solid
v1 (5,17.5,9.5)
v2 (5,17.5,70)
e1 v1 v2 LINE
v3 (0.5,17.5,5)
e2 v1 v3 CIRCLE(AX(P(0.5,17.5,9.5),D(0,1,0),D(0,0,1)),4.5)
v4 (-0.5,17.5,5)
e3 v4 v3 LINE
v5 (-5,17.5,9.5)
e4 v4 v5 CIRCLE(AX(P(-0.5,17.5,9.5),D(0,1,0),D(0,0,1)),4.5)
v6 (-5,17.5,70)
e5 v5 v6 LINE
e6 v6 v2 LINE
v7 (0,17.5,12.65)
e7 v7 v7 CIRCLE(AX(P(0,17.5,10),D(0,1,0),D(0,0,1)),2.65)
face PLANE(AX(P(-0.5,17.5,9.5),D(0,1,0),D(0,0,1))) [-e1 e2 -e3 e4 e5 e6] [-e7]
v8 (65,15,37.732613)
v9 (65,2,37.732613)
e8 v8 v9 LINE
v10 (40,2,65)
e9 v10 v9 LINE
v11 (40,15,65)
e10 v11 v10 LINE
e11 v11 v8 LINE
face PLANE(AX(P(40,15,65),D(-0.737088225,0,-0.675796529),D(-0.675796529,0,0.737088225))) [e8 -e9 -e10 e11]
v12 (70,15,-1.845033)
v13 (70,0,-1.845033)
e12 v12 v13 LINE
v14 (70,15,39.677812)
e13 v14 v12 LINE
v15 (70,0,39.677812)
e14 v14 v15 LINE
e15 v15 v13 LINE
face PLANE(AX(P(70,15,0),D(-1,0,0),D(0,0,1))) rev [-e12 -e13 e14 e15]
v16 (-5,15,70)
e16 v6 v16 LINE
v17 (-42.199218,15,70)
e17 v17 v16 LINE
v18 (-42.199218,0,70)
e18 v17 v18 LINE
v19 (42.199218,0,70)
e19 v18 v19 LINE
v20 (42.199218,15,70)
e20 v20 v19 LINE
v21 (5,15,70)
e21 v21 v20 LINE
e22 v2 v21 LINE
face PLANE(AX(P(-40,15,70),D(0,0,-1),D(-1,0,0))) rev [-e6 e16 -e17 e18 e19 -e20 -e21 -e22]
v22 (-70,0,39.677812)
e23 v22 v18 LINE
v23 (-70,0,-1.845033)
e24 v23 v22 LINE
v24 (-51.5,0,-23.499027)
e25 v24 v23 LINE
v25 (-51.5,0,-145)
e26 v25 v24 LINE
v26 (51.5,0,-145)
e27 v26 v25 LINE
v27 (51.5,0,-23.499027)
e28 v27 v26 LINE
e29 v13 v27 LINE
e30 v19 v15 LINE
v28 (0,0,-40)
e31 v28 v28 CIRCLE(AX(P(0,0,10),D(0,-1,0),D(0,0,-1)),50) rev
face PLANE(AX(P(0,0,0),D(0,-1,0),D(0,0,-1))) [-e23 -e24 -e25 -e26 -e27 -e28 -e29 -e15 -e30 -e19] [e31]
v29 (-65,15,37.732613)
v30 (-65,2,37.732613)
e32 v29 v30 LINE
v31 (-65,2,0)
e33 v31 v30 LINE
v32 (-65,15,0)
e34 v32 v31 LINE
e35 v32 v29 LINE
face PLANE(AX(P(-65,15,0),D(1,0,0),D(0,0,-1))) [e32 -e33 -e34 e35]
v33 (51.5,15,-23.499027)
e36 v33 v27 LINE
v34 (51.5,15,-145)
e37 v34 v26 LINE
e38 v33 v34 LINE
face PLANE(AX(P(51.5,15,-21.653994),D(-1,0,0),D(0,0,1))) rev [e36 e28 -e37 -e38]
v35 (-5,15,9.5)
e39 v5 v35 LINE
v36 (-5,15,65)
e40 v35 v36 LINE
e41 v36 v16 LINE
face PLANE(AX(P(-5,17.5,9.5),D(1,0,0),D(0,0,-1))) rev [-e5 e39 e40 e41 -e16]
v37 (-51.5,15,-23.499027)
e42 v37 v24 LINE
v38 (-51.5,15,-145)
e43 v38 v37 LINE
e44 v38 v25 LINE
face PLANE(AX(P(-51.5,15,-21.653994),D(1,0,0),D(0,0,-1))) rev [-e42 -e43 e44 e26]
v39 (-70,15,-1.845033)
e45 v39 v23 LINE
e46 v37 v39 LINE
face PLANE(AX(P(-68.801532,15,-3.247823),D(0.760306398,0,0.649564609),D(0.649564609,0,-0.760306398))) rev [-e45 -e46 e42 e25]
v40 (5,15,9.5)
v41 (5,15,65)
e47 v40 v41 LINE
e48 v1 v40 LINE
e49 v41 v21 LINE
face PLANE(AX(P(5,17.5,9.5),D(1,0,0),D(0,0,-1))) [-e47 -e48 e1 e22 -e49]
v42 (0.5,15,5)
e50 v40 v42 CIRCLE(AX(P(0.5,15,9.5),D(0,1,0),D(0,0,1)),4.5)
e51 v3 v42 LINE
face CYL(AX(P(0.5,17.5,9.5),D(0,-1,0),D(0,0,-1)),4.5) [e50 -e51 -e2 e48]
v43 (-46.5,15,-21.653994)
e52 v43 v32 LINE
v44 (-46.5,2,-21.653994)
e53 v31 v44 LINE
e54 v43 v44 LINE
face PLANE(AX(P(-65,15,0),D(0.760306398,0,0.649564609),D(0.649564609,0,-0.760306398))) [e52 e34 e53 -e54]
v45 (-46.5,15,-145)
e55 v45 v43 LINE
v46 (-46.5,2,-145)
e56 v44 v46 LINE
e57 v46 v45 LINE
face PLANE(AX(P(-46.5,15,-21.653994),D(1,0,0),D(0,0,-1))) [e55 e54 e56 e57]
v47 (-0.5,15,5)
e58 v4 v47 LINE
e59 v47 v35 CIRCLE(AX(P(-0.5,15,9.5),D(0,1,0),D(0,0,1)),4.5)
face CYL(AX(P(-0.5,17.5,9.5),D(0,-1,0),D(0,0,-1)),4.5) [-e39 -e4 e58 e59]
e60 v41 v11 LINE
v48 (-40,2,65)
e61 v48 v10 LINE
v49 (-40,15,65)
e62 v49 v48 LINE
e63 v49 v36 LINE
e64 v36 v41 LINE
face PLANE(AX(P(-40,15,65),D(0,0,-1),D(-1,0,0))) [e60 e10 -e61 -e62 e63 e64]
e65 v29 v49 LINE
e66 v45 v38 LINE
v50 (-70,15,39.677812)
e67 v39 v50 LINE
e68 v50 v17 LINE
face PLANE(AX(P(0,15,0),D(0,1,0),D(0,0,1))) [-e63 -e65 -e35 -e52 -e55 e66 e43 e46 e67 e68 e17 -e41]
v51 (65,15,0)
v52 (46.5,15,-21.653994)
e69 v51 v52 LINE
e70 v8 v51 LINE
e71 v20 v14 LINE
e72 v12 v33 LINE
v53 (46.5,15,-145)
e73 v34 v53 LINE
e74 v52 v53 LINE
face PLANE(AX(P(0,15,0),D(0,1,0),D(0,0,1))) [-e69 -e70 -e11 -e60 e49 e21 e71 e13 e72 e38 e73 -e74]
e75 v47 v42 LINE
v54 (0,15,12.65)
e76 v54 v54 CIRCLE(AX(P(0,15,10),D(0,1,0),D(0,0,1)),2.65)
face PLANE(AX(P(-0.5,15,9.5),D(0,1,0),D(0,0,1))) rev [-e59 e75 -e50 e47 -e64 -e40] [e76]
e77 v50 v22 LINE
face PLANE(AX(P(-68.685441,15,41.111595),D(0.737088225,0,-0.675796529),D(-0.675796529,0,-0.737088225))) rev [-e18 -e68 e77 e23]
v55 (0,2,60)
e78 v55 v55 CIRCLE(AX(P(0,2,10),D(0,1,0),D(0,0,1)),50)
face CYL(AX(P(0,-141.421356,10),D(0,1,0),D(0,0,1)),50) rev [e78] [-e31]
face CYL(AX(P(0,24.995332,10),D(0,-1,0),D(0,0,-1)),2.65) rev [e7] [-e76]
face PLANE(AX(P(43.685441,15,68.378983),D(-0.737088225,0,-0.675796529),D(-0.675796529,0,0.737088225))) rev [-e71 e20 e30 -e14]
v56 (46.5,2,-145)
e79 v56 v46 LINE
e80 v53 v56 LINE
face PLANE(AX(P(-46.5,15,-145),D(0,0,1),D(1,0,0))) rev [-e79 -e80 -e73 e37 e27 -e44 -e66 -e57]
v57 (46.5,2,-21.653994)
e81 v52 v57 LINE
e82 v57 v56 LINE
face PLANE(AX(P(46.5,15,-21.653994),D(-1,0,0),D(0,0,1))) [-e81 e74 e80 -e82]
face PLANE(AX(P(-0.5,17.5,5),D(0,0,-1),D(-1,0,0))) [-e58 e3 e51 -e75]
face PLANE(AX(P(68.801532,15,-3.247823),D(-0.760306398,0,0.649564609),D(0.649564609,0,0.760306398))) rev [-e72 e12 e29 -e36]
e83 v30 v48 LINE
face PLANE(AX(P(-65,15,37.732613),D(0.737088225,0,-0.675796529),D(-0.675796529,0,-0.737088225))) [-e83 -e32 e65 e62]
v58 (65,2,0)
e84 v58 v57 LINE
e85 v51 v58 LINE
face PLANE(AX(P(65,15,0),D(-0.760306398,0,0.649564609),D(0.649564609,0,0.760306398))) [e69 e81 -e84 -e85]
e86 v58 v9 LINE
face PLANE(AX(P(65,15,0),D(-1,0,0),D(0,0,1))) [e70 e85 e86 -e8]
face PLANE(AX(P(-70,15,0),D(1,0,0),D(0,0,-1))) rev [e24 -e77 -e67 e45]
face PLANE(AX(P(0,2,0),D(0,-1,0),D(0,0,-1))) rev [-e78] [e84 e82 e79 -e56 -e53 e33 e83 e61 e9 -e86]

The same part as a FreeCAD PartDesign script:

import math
import FreeCAD as App
import Part
import Sketcher

doc = App.newDocument("Part")
body = doc.addObject("PartDesign::Body", "Body")

# Sketch on XZ plane
sketch1 = body.newObject("Sketcher::SketchObject", "Sketch")
sketch1.AttachmentSupport = (doc.getObject("XZ_Plane"), [""])
sketch1.MapMode = "FlatFace"
sketch1.addGeometry(Part.LineSegment(App.Vector(46.5, -140, 0), App.Vector(-46.5, -140, 0)), False)
sketch1.addGeometry(Part.LineSegment(App.Vector(-46.5, -140, 0), App.Vector(-46.5, -21.653994, 0)), False)
sketch1.addGeometry(Part.LineSegment(App.Vector(-46.5, -21.653994, 0), App.Vector(-65, 0, 0)), False)
sketch1.addGeometry(Part.LineSegment(App.Vector(-65, 0, 0), App.Vector(-65, 37.732613, 0)), False)
sketch1.addGeometry(Part.LineSegment(App.Vector(-65, 37.732613, 0), App.Vector(-40, 65, 0)), False)
sketch1.addGeometry(Part.LineSegment(App.Vector(-40, 65, 0), App.Vector(40, 65, 0)), False)
sketch1.addGeometry(Part.LineSegment(App.Vector(40, 65, 0), App.Vector(65, 37.732613, 0)), False)
sketch1.addGeometry(Part.LineSegment(App.Vector(65, 37.732613, 0), App.Vector(65, 0, 0)), False)
sketch1.addGeometry(Part.LineSegment(App.Vector(65, 0, 0), App.Vector(46.5, -21.653994, 0)), False)
sketch1.addGeometry(Part.LineSegment(App.Vector(46.5, -21.653994, 0), App.Vector(46.5, -140, 0)), False)
sketch1.addConstraint(Sketcher.Constraint("Coincident", 0, 2, 1, 1))
sketch1.addConstraint(Sketcher.Constraint("Coincident", 1, 2, 2, 1))
sketch1.addConstraint(Sketcher.Constraint("Coincident", 2, 2, 3, 1))
sketch1.addConstraint(Sketcher.Constraint("Coincident", 3, 2, 4, 1))
sketch1.addConstraint(Sketcher.Constraint("Coincident", 4, 2, 5, 1))
sketch1.addConstraint(Sketcher.Constraint("Coincident", 5, 2, 6, 1))
sketch1.addConstraint(Sketcher.Constraint("Coincident", 6, 2, 7, 1))
sketch1.addConstraint(Sketcher.Constraint("Coincident", 7, 2, 8, 1))
sketch1.addConstraint(Sketcher.Constraint("Coincident", 8, 2, 9, 1))
sketch1.addConstraint(Sketcher.Constraint("Coincident", 9, 2, 0, 1))
sketch1.addConstraint(Sketcher.Constraint("Horizontal", 0))
sketch1.addConstraint(Sketcher.Constraint("Vertical", 1))
sketch1.addConstraint(Sketcher.Constraint("Vertical", 3))
sketch1.addConstraint(Sketcher.Constraint("Horizontal", 5))
sketch1.addConstraint(Sketcher.Constraint("Vertical", 7))
sketch1.addConstraint(Sketcher.Constraint("Vertical", 9))
sketch1.addConstraint(Sketcher.Constraint("Symmetric", 2, 2, 7, 2, -1, 1))
sketch1.addConstraint(Sketcher.Constraint("Symmetric", 1, 2, 8, 2, -2))
sketch1.addConstraint(Sketcher.Constraint("PointOnObject", 2, 2, -1))
sketch1.addConstraint(Sketcher.Constraint("Horizontal", 3, 2, 6, 2))
sketch1.addConstraint(Sketcher.Constraint("Equal", 4, 6))
sketch1.addConstraint(Sketcher.Constraint("DistanceX", 0, 2, 0, 1, 93.0))
sketch1.addConstraint(Sketcher.Constraint("DistanceX", 5, 1, 5, 2, 80.0))
sketch1.addConstraint(Sketcher.Constraint("DistanceY", 0, 2, -1, 1, 140.0))
sketch1.addConstraint(Sketcher.Constraint("DistanceX", 2, 2, -1, 1, 65.0))
sketch1.addConstraint(Sketcher.Constraint("DistanceY", -1, 1, 4, 2, 65.0))
sketch1.addConstraint(Sketcher.Constraint("DistanceY", 1, 1, 1, 2, 118.346006))
sketch1.addConstraint(Sketcher.Constraint("DistanceY", 3, 1, 3, 2, 37.732613))
pad1 = body.newObject("PartDesign::Pad", "Pad")
pad1.Profile = sketch1
pad1.Length = 2
pad1.Reversed = True

# Sketch on XZ plane
sketch2 = body.newObject("Sketcher::SketchObject", "Sketch001")
sketch2.AttachmentSupport = (doc.getObject("XZ_Plane"), [""])
sketch2.MapMode = "FlatFace"
sketch2.addGeometry(Part.LineSegment(App.Vector(51.5, -145, 0), App.Vector(-51.5, -145, 0)), False)
sketch2.addGeometry(Part.LineSegment(App.Vector(-51.5, -145, 0), App.Vector(-51.5, -23.499027, 0)), False)
sketch2.addGeometry(Part.LineSegment(App.Vector(-51.5, -23.499027, 0), App.Vector(-70, -1.845033, 0)), False)
sketch2.addGeometry(Part.LineSegment(App.Vector(-70, -1.845033, 0), App.Vector(-70, 39.677812, 0)), False)
sketch2.addGeometry(Part.LineSegment(App.Vector(-70, 39.677812, 0), App.Vector(-42.199218, 70, 0)), False)
sketch2.addGeometry(Part.LineSegment(App.Vector(-42.199218, 70, 0), App.Vector(42.199218, 70, 0)), False)
sketch2.addGeometry(Part.LineSegment(App.Vector(42.199218, 70, 0), App.Vector(70, 39.677812, 0)), False)
sketch2.addGeometry(Part.LineSegment(App.Vector(70, 39.677812, 0), App.Vector(70, -1.845033, 0)), False)
sketch2.addGeometry(Part.LineSegment(App.Vector(70, -1.845033, 0), App.Vector(51.5, -23.499027, 0)), False)
sketch2.addGeometry(Part.LineSegment(App.Vector(51.5, -23.499027, 0), App.Vector(51.5, -145, 0)), False)
sketch2.addGeometry(Part.LineSegment(App.Vector(-46.5, -140, 0), App.Vector(46.5, -140, 0)), False)
sketch2.addGeometry(Part.LineSegment(App.Vector(46.5, -140, 0), App.Vector(46.5, -21.653994, 0)), False)
sketch2.addGeometry(Part.LineSegment(App.Vector(46.5, -21.653994, 0), App.Vector(65, 0, 0)), False)
sketch2.addGeometry(Part.LineSegment(App.Vector(65, 0, 0), App.Vector(65, 37.732613, 0)), False)
sketch2.addGeometry(Part.LineSegment(App.Vector(65, 37.732613, 0), App.Vector(40, 65, 0)), False)
sketch2.addGeometry(Part.LineSegment(App.Vector(40, 65, 0), App.Vector(-40, 65, 0)), False)
sketch2.addGeometry(Part.LineSegment(App.Vector(-40, 65, 0), App.Vector(-65, 37.732613, 0)), False)
sketch2.addGeometry(Part.LineSegment(App.Vector(-65, 37.732613, 0), App.Vector(-65, 0, 0)), False)
sketch2.addGeometry(Part.LineSegment(App.Vector(-65, 0, 0), App.Vector(-46.5, -21.653994, 0)), False)
sketch2.addGeometry(Part.LineSegment(App.Vector(-46.5, -21.653994, 0), App.Vector(-46.5, -140, 0)), False)
sketch2.addConstraint(Sketcher.Constraint("Coincident", 0, 2, 1, 1))
sketch2.addConstraint(Sketcher.Constraint("Coincident", 1, 2, 2, 1))
sketch2.addConstraint(Sketcher.Constraint("Coincident", 2, 2, 3, 1))
sketch2.addConstraint(Sketcher.Constraint("Coincident", 3, 2, 4, 1))
sketch2.addConstraint(Sketcher.Constraint("Coincident", 4, 2, 5, 1))
sketch2.addConstraint(Sketcher.Constraint("Coincident", 5, 2, 6, 1))
sketch2.addConstraint(Sketcher.Constraint("Coincident", 6, 2, 7, 1))
sketch2.addConstraint(Sketcher.Constraint("Coincident", 7, 2, 8, 1))
sketch2.addConstraint(Sketcher.Constraint("Coincident", 8, 2, 9, 1))
sketch2.addConstraint(Sketcher.Constraint("Coincident", 9, 2, 0, 1))
sketch2.addConstraint(Sketcher.Constraint("Coincident", 10, 2, 11, 1))
sketch2.addConstraint(Sketcher.Constraint("Coincident", 11, 2, 12, 1))
sketch2.addConstraint(Sketcher.Constraint("Coincident", 12, 2, 13, 1))
sketch2.addConstraint(Sketcher.Constraint("Coincident", 13, 2, 14, 1))
sketch2.addConstraint(Sketcher.Constraint("Coincident", 14, 2, 15, 1))
sketch2.addConstraint(Sketcher.Constraint("Coincident", 15, 2, 16, 1))
sketch2.addConstraint(Sketcher.Constraint("Coincident", 16, 2, 17, 1))
sketch2.addConstraint(Sketcher.Constraint("Coincident", 17, 2, 18, 1))
sketch2.addConstraint(Sketcher.Constraint("Coincident", 18, 2, 19, 1))
sketch2.addConstraint(Sketcher.Constraint("Coincident", 19, 2, 10, 1))
sketch2.addConstraint(Sketcher.Constraint("Horizontal", 0))
sketch2.addConstraint(Sketcher.Constraint("Vertical", 1))
sketch2.addConstraint(Sketcher.Constraint("Vertical", 3))
sketch2.addConstraint(Sketcher.Constraint("Horizontal", 5))
sketch2.addConstraint(Sketcher.Constraint("Vertical", 7))
sketch2.addConstraint(Sketcher.Constraint("Vertical", 9))
sketch2.addConstraint(Sketcher.Constraint("Horizontal", 10))
sketch2.addConstraint(Sketcher.Constraint("Vertical", 11))
sketch2.addConstraint(Sketcher.Constraint("Vertical", 13))
sketch2.addConstraint(Sketcher.Constraint("Horizontal", 15))
sketch2.addConstraint(Sketcher.Constraint("Vertical", 17))
sketch2.addConstraint(Sketcher.Constraint("Vertical", 19))
sketch2.addConstraint(Sketcher.Constraint("Symmetric", 12, 2, 17, 2, -1, 1))
sketch2.addConstraint(Sketcher.Constraint("Symmetric", 3, 2, 6, 2, -2))
sketch2.addConstraint(Sketcher.Constraint("Symmetric", 1, 2, 8, 2, -2))
sketch2.addConstraint(Sketcher.Constraint("Symmetric", 11, 2, 18, 2, -2))
sketch2.addConstraint(Sketcher.Constraint("PointOnObject", 12, 2, -1))
sketch2.addConstraint(Sketcher.Constraint("Parallel", 8, 12))
sketch2.addConstraint(Sketcher.Constraint("Parallel", 6, 14))
sketch2.addConstraint(Sketcher.Constraint("Parallel", 4, 16))
sketch2.addConstraint(Sketcher.Constraint("Parallel", 2, 18))
sketch2.addConstraint(Sketcher.Constraint("Horizontal", 13, 2, 16, 2))
sketch2.addConstraint(Sketcher.Constraint("Equal", 4, 6))
sketch2.addConstraint(Sketcher.Constraint("Equal", 8, 12))
sketch2.addConstraint(Sketcher.Constraint("DistanceX", 0, 2, 0, 1, 103.0))
sketch2.addConstraint(Sketcher.Constraint("DistanceX", 10, 1, 10, 2, 93.0))
sketch2.addConstraint(Sketcher.Constraint("DistanceX", 15, 2, 15, 1, 80.0))
sketch2.addConstraint(Sketcher.Constraint("DistanceY", 0, 2, -1, 1, 145.0))
sketch2.addConstraint(Sketcher.Constraint("DistanceX", 2, 2, -1, 1, 70.0))
sketch2.addConstraint(Sketcher.Constraint("DistanceY", -1, 1, 4, 2, 70.0))
sketch2.addConstraint(Sketcher.Constraint("DistanceY", 10, 2, -1, 1, 140.0))
sketch2.addConstraint(Sketcher.Constraint("DistanceY", -1, 1, 14, 2, 65.0))
sketch2.addConstraint(Sketcher.Constraint("Distance", 4, 41.1378))
sketch2.addConstraint(Sketcher.Constraint("DistanceY", 13, 2, 6, 2, 1.945199))
sketch2.addConstraint(Sketcher.Constraint("DistanceY", 1, 1, 1, 2, 121.500973))
sketch2.addConstraint(Sketcher.Constraint("DistanceY", 3, 1, 3, 2, 41.522845))
pad2 = body.newObject("PartDesign::Pad", "Pad001")
pad2.Profile = sketch2
pad2.Length = 15
pad2.Reversed = True

# Sketch on XY plane
sketch3 = body.newObject("Sketcher::SketchObject", "Sketch002")
sketch3.AttachmentSupport = (doc.getObject("XY_Plane"), [""])
sketch3.MapMode = "FlatFace"
sketch3.AttachmentOffset = App.Placement(App.Vector(0, 0, -140), App.Rotation())
sketch3.addGeometry(Part.LineSegment(App.Vector(-46.5, 15, 0), App.Vector(-46.5, 2, 0)), False)
sketch3.addGeometry(Part.LineSegment(App.Vector(-46.5, 2, 0), App.Vector(46.5, 2, 0)), False)
sketch3.addGeometry(Part.LineSegment(App.Vector(46.5, 2, 0), App.Vector(46.5, 15, 0)), False)
sketch3.addGeometry(Part.LineSegment(App.Vector(46.5, 15, 0), App.Vector(-46.5, 15, 0)), False)
sketch3.addConstraint(Sketcher.Constraint("Coincident", 0, 2, 1, 1))
sketch3.addConstraint(Sketcher.Constraint("Coincident", 1, 2, 2, 1))
sketch3.addConstraint(Sketcher.Constraint("Coincident", 2, 2, 3, 1))
sketch3.addConstraint(Sketcher.Constraint("Coincident", 3, 2, 0, 1))
sketch3.addConstraint(Sketcher.Constraint("Vertical", 0))
sketch3.addConstraint(Sketcher.Constraint("Horizontal", 1))
sketch3.addConstraint(Sketcher.Constraint("Vertical", 2))
sketch3.addConstraint(Sketcher.Constraint("Horizontal", 3))
sketch3.addConstraint(Sketcher.Constraint("DistanceX", 1, 1, 1, 2, 93.0))
sketch3.addConstraint(Sketcher.Constraint("DistanceY", 0, 2, 0, 1, 13.0))
sketch3.addConstraint(Sketcher.Constraint("DistanceY", -1, 1, 0, 2, 2.0))
sketch3.addConstraint(Sketcher.Constraint("DistanceX", 0, 2, -1, 1, 46.5))
pocket1 = body.newObject("PartDesign::Pocket", "Pocket")
pocket1.Profile = sketch3
pocket1.Length = 5

# Sketch on XZ plane
sketch4 = body.newObject("Sketcher::SketchObject", "Sketch003")
sketch4.AttachmentSupport = (doc.getObject("XZ_Plane"), [""])
sketch4.MapMode = "FlatFace"
sketch4.AttachmentOffset = App.Placement(App.Vector(0, 0, -2), App.Rotation())
sketch4.addGeometry(Part.Circle(App.Vector(0, 10, 0), App.Vector(0, 0, 1), 50), False)
sketch4.addConstraint(Sketcher.Constraint("PointOnObject", 0, 3, -2))
sketch4.addConstraint(Sketcher.Constraint("Diameter", 0, 100.0))
sketch4.addConstraint(Sketcher.Constraint("DistanceY", -1, 1, 0, 3, 10.0))
pocket2 = body.newObject("PartDesign::Pocket", "Pocket001")
pocket2.Profile = sketch4
pocket2.Length = 2
pocket2.Reversed = True

# Sketch on XZ plane
sketch5 = body.newObject("Sketcher::SketchObject", "Sketch004")
sketch5.AttachmentSupport = (doc.getObject("XZ_Plane"), [""])
sketch5.MapMode = "FlatFace"
sketch5.AttachmentOffset = App.Placement(App.Vector(0, 0, -15), App.Rotation())
sketch5.addGeometry(Part.LineSegment(App.Vector(0.5, 5, 0), App.Vector(-0.5, 5, 0)), False)
sketch5.addGeometry(Part.ArcOfCircle(Part.Circle(App.Vector(-0.5, 9.5, 0), App.Vector(0, 0, 1), 4.5), math.radians(-180), math.radians(-90)), False)
sketch5.addGeometry(Part.LineSegment(App.Vector(-5, 9.5, 0), App.Vector(-5, 70, 0)), False)
sketch5.addGeometry(Part.LineSegment(App.Vector(-5, 70, 0), App.Vector(5, 70, 0)), False)
sketch5.addGeometry(Part.LineSegment(App.Vector(5, 70, 0), App.Vector(5, 9.5, 0)), False)
sketch5.addGeometry(Part.ArcOfCircle(Part.Circle(App.Vector(0.5, 9.5, 0), App.Vector(0, 0, 1), 4.5), math.radians(-90), math.radians(0)), False)
sketch5.addConstraint(Sketcher.Constraint("Tangent", 0, 2, 1, 2))
sketch5.addConstraint(Sketcher.Constraint("Tangent", 1, 1, 2, 1))
sketch5.addConstraint(Sketcher.Constraint("Coincident", 2, 2, 3, 1))
sketch5.addConstraint(Sketcher.Constraint("Coincident", 3, 2, 4, 1))
sketch5.addConstraint(Sketcher.Constraint("Tangent", 4, 2, 5, 2))
sketch5.addConstraint(Sketcher.Constraint("Tangent", 5, 1, 0, 1))
sketch5.addConstraint(Sketcher.Constraint("Horizontal", 0))
sketch5.addConstraint(Sketcher.Constraint("Vertical", 2))
sketch5.addConstraint(Sketcher.Constraint("Horizontal", 3))
sketch5.addConstraint(Sketcher.Constraint("Vertical", 4))
sketch5.addConstraint(Sketcher.Constraint("Equal", 1, 5))
sketch5.addConstraint(Sketcher.Constraint("Radius", 1, 4.5))
sketch5.addConstraint(Sketcher.Constraint("DistanceX", 0, 2, 0, 1, 1.0))
sketch5.addConstraint(Sketcher.Constraint("DistanceY", 2, 1, 2, 2, 60.5))
sketch5.addConstraint(Sketcher.Constraint("DistanceY", -1, 1, 0, 2, 5.0))
sketch5.addConstraint(Sketcher.Constraint("DistanceX", 1, 1, -1, 1, 5.0))
pad3 = body.newObject("PartDesign::Pad", "Pad002")
pad3.Profile = sketch5
pad3.Length = 2.5
pad3.Reversed = True

# Sketch on XZ plane
sketch6 = body.newObject("Sketcher::SketchObject", "Sketch005")
sketch6.AttachmentSupport = (doc.getObject("XZ_Plane"), [""])
sketch6.MapMode = "FlatFace"
sketch6.AttachmentOffset = App.Placement(App.Vector(0, 0, -15), App.Rotation())
sketch6.addGeometry(Part.Circle(App.Vector(0, 10, 0), App.Vector(0, 0, 1), 2.65), False)
sketch6.addConstraint(Sketcher.Constraint("PointOnObject", 0, 3, -2))
sketch6.addConstraint(Sketcher.Constraint("Diameter", 0, 5.3))
sketch6.addConstraint(Sketcher.Constraint("DistanceY", -1, 1, 0, 3, 10.0))
pocket3 = body.newObject("PartDesign::Pocket", "Pocket002")
pocket3.Profile = sketch6
pocket3.Length = 2.5

doc.recompute()
